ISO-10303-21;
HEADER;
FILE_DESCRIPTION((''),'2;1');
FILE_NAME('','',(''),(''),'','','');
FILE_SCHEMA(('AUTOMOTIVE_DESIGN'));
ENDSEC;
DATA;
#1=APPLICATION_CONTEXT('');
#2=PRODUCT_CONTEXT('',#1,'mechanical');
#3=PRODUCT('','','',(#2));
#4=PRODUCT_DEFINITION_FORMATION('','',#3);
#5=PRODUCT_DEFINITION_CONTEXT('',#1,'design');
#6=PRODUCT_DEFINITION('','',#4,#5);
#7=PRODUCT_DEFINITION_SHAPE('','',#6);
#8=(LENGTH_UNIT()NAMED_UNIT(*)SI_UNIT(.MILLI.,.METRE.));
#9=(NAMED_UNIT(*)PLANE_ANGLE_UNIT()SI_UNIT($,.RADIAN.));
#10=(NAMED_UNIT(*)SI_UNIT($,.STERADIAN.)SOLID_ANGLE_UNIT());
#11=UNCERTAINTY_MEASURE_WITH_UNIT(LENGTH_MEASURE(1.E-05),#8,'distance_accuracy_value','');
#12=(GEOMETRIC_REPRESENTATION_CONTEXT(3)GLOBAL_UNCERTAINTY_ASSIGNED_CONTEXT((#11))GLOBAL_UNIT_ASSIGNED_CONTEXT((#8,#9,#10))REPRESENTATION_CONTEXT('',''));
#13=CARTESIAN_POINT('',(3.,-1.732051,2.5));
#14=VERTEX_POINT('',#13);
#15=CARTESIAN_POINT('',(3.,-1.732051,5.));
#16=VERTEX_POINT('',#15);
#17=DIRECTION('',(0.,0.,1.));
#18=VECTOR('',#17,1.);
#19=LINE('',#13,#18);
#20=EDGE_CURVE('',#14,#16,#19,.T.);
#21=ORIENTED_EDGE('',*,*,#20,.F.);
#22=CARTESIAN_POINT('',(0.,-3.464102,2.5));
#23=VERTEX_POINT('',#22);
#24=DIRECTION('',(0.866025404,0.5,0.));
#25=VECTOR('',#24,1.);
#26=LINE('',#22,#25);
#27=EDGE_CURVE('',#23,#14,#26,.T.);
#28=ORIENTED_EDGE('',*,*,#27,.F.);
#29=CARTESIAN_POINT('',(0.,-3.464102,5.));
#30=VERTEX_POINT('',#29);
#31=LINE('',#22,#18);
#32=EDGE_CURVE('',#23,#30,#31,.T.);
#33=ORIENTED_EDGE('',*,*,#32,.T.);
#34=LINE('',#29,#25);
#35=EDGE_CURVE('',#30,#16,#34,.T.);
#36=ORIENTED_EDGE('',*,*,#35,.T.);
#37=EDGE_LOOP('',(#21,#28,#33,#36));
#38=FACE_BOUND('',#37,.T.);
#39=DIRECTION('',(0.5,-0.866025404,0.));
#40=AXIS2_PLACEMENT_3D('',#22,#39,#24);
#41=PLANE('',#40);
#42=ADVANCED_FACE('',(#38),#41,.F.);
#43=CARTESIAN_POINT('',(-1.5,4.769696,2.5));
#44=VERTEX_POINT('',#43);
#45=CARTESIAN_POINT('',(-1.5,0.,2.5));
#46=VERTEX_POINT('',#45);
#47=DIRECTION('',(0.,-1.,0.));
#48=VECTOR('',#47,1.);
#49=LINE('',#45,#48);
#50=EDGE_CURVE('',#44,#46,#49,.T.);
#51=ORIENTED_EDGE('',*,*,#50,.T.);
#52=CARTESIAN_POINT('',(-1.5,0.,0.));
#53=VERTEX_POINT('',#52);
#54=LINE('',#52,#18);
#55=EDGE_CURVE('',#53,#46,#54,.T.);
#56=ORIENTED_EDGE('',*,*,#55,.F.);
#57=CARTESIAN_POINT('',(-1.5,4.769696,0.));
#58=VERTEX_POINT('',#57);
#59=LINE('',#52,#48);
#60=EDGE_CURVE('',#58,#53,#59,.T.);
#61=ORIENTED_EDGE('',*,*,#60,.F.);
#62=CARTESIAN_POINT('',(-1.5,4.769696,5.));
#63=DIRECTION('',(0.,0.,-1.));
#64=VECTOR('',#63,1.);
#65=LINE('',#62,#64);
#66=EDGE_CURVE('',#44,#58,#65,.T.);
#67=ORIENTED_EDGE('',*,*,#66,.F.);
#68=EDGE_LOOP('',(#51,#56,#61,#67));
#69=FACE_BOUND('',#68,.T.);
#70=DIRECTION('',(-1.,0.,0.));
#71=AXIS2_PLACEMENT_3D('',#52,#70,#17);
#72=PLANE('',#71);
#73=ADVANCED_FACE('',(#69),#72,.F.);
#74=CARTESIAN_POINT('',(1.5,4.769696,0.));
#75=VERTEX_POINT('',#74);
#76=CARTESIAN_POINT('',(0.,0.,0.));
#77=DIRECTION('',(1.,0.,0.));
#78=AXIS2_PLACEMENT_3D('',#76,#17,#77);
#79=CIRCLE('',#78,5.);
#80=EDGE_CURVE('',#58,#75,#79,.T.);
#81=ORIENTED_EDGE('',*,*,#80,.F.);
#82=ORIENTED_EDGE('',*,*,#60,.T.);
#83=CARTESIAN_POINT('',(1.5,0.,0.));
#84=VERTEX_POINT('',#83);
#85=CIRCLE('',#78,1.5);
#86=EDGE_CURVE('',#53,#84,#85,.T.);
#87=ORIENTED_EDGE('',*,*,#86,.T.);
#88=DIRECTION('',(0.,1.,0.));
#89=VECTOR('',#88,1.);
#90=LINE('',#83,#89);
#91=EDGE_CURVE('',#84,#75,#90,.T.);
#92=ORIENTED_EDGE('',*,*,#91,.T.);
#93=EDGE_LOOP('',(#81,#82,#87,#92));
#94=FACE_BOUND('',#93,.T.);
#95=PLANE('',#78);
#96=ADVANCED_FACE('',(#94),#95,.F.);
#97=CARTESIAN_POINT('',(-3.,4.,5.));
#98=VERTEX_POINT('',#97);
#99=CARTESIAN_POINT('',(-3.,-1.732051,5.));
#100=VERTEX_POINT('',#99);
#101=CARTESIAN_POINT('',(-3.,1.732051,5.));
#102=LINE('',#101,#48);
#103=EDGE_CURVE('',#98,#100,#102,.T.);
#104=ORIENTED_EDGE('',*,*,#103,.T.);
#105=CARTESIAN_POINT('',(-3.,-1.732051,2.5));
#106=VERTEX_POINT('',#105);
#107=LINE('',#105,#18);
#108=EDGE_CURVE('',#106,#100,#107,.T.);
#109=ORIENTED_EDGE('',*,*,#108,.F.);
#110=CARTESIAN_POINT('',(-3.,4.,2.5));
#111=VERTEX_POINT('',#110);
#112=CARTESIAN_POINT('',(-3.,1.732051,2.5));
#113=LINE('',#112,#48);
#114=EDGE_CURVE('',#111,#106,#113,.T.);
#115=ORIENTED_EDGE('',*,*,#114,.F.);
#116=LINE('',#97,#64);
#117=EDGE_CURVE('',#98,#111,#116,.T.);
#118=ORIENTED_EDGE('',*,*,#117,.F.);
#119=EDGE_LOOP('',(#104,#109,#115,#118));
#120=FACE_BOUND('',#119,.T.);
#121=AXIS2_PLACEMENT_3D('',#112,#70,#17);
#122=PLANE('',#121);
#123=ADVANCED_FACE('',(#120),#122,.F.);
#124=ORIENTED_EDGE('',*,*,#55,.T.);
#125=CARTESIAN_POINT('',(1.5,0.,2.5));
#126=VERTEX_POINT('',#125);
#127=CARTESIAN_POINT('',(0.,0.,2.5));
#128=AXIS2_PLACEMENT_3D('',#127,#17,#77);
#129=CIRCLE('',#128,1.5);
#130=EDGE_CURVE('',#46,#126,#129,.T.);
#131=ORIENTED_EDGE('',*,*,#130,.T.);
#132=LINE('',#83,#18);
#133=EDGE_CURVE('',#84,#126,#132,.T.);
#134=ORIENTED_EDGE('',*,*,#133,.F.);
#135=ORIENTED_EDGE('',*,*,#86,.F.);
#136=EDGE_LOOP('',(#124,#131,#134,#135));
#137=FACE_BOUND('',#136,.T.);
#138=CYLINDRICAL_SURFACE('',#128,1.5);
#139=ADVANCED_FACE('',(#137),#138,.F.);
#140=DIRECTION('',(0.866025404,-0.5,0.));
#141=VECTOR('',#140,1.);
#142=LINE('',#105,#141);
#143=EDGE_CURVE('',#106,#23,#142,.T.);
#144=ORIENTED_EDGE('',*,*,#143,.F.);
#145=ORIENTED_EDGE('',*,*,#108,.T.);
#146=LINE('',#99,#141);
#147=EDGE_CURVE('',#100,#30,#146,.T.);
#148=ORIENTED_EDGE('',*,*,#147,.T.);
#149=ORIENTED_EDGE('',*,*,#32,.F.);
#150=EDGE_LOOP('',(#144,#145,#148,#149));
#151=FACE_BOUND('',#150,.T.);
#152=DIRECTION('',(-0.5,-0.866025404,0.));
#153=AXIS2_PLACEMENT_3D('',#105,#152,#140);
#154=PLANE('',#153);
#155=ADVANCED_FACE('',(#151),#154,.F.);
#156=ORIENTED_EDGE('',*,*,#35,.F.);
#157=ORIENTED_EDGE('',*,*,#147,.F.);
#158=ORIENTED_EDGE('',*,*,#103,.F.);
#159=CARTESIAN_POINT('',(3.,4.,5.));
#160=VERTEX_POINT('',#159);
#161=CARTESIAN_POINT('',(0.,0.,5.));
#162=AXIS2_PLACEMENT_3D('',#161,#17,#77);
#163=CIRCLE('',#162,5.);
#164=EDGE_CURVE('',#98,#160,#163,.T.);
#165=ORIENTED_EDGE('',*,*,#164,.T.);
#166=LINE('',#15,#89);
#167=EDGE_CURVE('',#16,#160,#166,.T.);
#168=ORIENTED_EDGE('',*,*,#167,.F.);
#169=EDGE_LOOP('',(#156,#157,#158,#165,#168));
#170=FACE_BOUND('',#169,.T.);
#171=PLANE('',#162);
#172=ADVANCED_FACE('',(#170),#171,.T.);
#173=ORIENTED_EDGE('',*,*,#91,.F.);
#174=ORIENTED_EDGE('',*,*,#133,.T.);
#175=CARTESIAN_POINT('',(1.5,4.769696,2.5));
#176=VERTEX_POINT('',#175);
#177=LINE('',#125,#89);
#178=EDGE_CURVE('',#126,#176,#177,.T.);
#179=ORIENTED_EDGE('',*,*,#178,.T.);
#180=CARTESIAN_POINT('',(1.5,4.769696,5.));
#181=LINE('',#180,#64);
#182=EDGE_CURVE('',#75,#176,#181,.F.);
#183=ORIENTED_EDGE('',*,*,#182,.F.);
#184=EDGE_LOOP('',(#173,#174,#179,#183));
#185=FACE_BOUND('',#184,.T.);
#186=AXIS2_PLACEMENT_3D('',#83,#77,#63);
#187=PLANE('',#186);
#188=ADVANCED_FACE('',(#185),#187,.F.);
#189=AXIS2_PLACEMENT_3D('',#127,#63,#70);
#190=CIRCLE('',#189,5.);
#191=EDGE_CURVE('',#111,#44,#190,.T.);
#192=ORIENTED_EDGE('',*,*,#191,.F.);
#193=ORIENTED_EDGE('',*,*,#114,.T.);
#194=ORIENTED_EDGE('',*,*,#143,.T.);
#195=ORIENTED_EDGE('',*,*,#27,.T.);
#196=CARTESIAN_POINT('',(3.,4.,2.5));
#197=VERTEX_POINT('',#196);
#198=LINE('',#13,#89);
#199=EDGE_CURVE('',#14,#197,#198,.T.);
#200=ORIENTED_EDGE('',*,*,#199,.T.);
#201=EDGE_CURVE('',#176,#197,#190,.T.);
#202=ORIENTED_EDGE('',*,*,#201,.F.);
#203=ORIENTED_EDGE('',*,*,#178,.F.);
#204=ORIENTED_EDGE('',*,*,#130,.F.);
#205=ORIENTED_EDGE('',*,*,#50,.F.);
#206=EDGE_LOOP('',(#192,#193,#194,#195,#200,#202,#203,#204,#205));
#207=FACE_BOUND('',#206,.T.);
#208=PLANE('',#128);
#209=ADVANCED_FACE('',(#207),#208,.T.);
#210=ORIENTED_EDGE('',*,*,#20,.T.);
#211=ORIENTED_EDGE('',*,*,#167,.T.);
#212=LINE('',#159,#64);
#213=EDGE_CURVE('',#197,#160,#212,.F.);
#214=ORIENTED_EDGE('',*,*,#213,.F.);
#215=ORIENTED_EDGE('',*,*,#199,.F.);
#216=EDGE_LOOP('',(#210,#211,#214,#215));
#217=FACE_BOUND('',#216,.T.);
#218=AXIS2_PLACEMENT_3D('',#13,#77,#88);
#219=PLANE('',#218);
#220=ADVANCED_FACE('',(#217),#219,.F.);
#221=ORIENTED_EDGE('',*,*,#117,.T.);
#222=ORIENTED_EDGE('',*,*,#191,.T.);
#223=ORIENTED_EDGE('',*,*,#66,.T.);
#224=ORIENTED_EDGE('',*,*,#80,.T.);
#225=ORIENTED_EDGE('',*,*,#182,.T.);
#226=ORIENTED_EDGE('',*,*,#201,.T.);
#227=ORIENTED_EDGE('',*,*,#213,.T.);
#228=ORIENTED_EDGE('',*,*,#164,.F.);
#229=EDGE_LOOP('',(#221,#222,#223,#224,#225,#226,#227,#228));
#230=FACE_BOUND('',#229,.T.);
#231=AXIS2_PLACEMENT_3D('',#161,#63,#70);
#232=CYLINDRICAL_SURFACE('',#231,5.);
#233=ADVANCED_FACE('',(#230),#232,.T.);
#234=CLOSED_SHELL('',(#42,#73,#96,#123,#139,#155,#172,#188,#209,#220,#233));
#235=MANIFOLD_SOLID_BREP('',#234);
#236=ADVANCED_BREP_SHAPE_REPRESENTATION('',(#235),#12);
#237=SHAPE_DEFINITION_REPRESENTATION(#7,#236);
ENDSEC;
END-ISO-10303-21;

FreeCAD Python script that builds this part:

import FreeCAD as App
import Part
import Sketcher
from FreeCAD import Vector
Q = App.Units.Quantity


def add_polygon(sketch, points):
    """Adds a closed chain of lines whose ends are joined by coincident constraints."""
    first, n = sketch.GeometryCount, len(points)
    for a, b in zip(points, points[1:] + points[:1]):
        sketch.addGeometry(Part.LineSegment(App.Vector(*a, 0), App.Vector(*b, 0)), False)
    for i in range(n):
        sketch.addConstraint(Sketcher.Constraint("Coincident", first + i, 2, first + (i + 1) % n, 1))

doc = App.newDocument("Part")
body = doc.addObject("PartDesign::Body", "Body")

sketch1 = body.newObject("Sketcher::SketchObject", "Sketch")
sketch1.AttachmentSupport = (doc.getObject("XY_Plane"), [""])
sketch1.MapMode = "FlatFace"
sketch1.addGeometry(Part.Circle(Vector(0, 0, 0), Vector(0, 0, 1), 5), False)
sketch1.addConstraint(Sketcher.Constraint("Coincident", 0, 3, -1, 1))
sketch1.addConstraint(Sketcher.Constraint("Diameter", 0, 10.0))
pad1 = body.newObject("PartDesign::Pad", "Pad")
pad1.Profile = sketch1
pad1.Length = 5

sketch2 = body.newObject("Sketcher::SketchObject", "Sketch001")
sketch2.AttachmentSupport = (doc.getObject("XY_Plane"), [""])
sketch2.MapMode = "FlatFace"
sketch2.AttachmentOffset = App.Placement(Vector(0, 0, 5), App.Rotation())
add_polygon(sketch2, [(0, 3.5), (-3, 1.7), (-3, -1.7), (0, -3.5), (3, -1.7), (3, 1.7)])
sketch2.addConstraint(Sketcher.Constraint("Vertical", 1))
sketch2.addConstraint(Sketcher.Constraint("Vertical", 4))
sketch2.addConstraint(Sketcher.Constraint("Symmetric", 0, 2, 3, 2, -1, 1))
sketch2.addConstraint(Sketcher.Constraint("Symmetric", 2, 2, 5, 2, -1, 1))
sketch2.addConstraint(Sketcher.Constraint("PointOnObject", 2, 2, -2))
sketch2.addConstraint(Sketcher.Constraint("Parallel", 2, 5))
sketch2.addConstraint(Sketcher.Constraint("Horizontal", 1, 2, 3, 2))
sketch2.addConstraint(Sketcher.Constraint("Angle", 0, Q("-150 deg")))
sketch2.addConstraint(Sketcher.Constraint("DistanceX", 0, 2, -1, 1, 3.0))
sketch2.addConstraint(Sketcher.Constraint("DistanceY", 1, 2, 1, 1, 3.464102))
pocket1 = body.newObject("PartDesign::Pocket", "Pocket")
pocket1.Profile = sketch2
pocket1.Length = 2.5

sketch3 = body.newObject("Sketcher::SketchObject", "Sketch002")
sketch3.AttachmentSupport = (doc.getObject("XY_Plane"), [""])
sketch3.MapMode = "FlatFace"
sketch3.AttachmentOffset = App.Placement(Vector(0, 0, 2.5), App.Rotation())
sketch3.addGeometry(Part.Circle(Vector(0, 0, 0), Vector(0, 0, 1), 1.5), False)
sketch3.addConstraint(Sketcher.Constraint("Coincident", 0, 3, -1, 1))
sketch3.addConstraint(Sketcher.Constraint("Diameter", 0, 3.0))
doc.recompute()
hole = body.newObject("PartDesign::Hole", "Hole")
hole.Profile = sketch3
hole.ThreadType = "None"
hole.Diameter = 3
hole.DepthType = "Dimension"
hole.Depth = 7.25
hole.DrillPoint = "Angled"
hole.DrillPointAngle = 118

sketch4 = body.newObject("Sketcher::SketchObject", "Sketch003")
sketch4.AttachmentSupport = (doc.getObject("XY_Plane"), [""])
sketch4.MapMode = "FlatFace"
sketch4.AttachmentOffset = App.Placement(Vector(0, 0, 5), App.Rotation())
add_polygon(sketch4, [(-3, 5.4), (-3, 1.7), (3, 1.7), (3, 5.4)])
sketch4.addConstraint(Sketcher.Constraint("Vertical", 0))
sketch4.addConstraint(Sketcher.Constraint("Horizontal", 1))
sketch4.addConstraint(Sketcher.Constraint("Vertical", 2))
sketch4.addConstraint(Sketcher.Constraint("Horizontal", 3))
sketch4.addConstraint(Sketcher.Constraint("DistanceX", 1, 1, 1, 2, 6.0))
sketch4.addConstraint(Sketcher.Constraint("DistanceX", 0, 2, -1, 1, 3.0))
sketch4.addConstraint(Sketcher.Constraint("DistanceY", 0, 2, 0, 1, 3.662813))
sketch4.addConstraint(Sketcher.Constraint("DistanceY", -1, 1, 0, 2, 1.732051))
pocket2 = body.newObject("PartDesign::Pocket", "Pocket001")
pocket2.Profile = sketch4
pocket2.Length = 2.5

sketch5 = body.newObject("Sketcher::SketchObject", "Sketch004")
sketch5.AttachmentSupport = (doc.getObject("XY_Plane"), [""])
sketch5.MapMode = "FlatFace"
sketch5.AttachmentOffset = App.Placement(Vector(0, 0, 2.5), App.Rotation())
add_polygon(sketch5, [(-1.5, 7), (-1.5, 0), (1.5, 0), (1.5, 7)])
sketch5.addConstraint(Sketcher.Constraint("Vertical", 0))
sketch5.addConstraint(Sketcher.Constraint("Horizontal", 1))
sketch5.addConstraint(Sketcher.Constraint("Vertical", 2))
sketch5.addConstraint(Sketcher.Constraint("Horizontal", 3))
sketch5.addConstraint(Sketcher.Constraint("Symmetric", 0, 2, 1, 2, -1, 1))
sketch5.addConstraint(Sketcher.Constraint("DistanceX", 1, 1, 1, 2, 3.0))
sketch5.addConstraint(Sketcher.Constraint("DistanceY", 0, 2, 0, 1, 6.97701))
pocket3 = body.newObject("PartDesign::Pocket", "Pocket002")
pocket3.Profile = sketch5
pocket3.Length = 2.5

doc.recompute()
